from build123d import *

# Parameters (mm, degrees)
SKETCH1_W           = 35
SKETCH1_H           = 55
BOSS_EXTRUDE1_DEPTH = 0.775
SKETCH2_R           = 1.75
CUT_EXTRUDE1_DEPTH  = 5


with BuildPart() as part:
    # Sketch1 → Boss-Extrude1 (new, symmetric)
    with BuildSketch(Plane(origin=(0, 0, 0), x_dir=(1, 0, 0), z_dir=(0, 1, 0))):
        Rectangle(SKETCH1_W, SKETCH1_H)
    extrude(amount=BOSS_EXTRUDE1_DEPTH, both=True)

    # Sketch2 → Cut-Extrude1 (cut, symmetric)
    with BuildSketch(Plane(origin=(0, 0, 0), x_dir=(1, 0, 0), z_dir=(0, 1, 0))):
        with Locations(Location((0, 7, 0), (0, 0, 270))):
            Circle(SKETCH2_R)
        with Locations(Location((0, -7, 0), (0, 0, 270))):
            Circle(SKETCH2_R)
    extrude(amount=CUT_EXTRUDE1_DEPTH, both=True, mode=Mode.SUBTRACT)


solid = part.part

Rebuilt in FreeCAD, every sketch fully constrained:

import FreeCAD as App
import Part
import Sketcher


def add_polygon(sketch, points):
    """Adds a closed chain of lines whose ends are joined by coincident constraints."""
    first, n = sketch.GeometryCount, len(points)
    for a, b in zip(points, points[1:] + points[:1]):
        sketch.addGeometry(Part.LineSegment(App.Vector(*a, 0), App.Vector(*b, 0)), False)
    for i in range(n):
        sketch.addConstraint(Sketcher.Constraint("Coincident", first + i, 2, first + (i + 1) % n, 1))

doc = App.newDocument("Part")
body = doc.addObject("PartDesign::Body", "Body")

# Sketch on XZ plane
sketch1 = doc.addObject("Sketcher::SketchObject", "Sketch")
body.addObject(sketch1)
sketch1.AttachmentSupport = (doc.XZ_Plane, [""])
sketch1.MapMode = "FlatFace"
add_polygon(sketch1, [(-17.5, -27.5), (-17.5, 27.5), (17.5, 27.5), (17.5, -27.5)])  # lines 0-3
sketch1.addConstraint([
    Sketcher.Constraint("Vertical", 0),
    Sketcher.Constraint("Horizontal", 1),
    Sketcher.Constraint("Vertical", 2),
    Sketcher.Constraint("Horizontal", 3),
    Sketcher.Constraint("Symmetric", 0, 2, 2, 2, -1, 1),
    Sketcher.Constraint("DistanceX", 1, 1, 1, 2, 35.0),
    Sketcher.Constraint("DistanceY", 0, 1, 0, 2, 55.0),
])
pad1 = doc.addObject("PartDesign::Pad", "Pad")
body.addObject(pad1)
pad1.Profile = sketch1
pad1.Length = 1.55
pad1.Midplane = True

# Sketch on XZ plane
sketch2 = doc.addObject("Sketcher::SketchObject", "Sketch001")
body.addObject(sketch2)
sketch2.AttachmentSupport = (doc.XZ_Plane, [""])
sketch2.MapMode = "FlatFace"
sketch2.addGeometry([
    Part.Circle(App.Vector(0, -7, 0), App.Vector(0, 0, 1), 1.75),
    Part.Circle(App.Vector(0, 7, 0), App.Vector(0, 0, 1), 1.75),
], False)
sketch2.addConstraint([
    Sketcher.Constraint("Equal", 0, 1),
    Sketcher.Constraint("Symmetric", 0, 3, 1, 3, -1, 1),
    Sketcher.Constraint("PointOnObject", 0, 3, -2),
    Sketcher.Constraint("Diameter", 0, 3.5),
    Sketcher.Constraint("DistanceY", 0, 3, -1, 1, 7.0),
])
pocket1 = doc.addObject("PartDesign::Pocket", "Pocket")
body.addObject(pocket1)
pocket1.Profile = sketch2
pocket1.Length = 10
pocket1.Midplane = True

doc.recompute()
